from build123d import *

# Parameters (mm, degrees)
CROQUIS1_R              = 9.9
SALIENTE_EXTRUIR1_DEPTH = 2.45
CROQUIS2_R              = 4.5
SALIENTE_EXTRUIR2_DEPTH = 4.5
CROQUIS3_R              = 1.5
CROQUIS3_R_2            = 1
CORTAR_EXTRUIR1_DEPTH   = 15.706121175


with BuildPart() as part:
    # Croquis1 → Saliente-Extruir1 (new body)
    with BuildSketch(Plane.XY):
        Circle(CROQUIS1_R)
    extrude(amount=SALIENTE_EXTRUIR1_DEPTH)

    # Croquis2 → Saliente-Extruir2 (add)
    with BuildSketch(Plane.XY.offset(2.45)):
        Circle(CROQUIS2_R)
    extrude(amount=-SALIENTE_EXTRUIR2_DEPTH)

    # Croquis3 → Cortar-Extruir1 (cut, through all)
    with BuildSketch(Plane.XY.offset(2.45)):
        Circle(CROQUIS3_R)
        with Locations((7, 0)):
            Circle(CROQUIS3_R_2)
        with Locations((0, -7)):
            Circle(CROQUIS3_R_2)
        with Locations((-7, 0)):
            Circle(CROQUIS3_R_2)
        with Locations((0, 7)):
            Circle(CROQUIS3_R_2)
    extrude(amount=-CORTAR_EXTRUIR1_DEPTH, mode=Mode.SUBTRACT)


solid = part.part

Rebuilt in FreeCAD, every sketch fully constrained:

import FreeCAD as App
import Part
import Sketcher
from FreeCAD import Vector
Q = App.Units.Quantity

doc = App.newDocument("Part")
body = doc.addObject("PartDesign::Body", "Body")

# Sketch on XY plane
sketch1 = doc.addObject("Sketcher::SketchObject", "Sketch")
body.addObject(sketch1)
sketch1.AttachmentSupport = (doc.XY_Plane, [""])
sketch1.MapMode = "FlatFace"
sketch1.addGeometry(Part.Circle(Vector(0, 0, 0), Vector(0, 0, 1), 9.9), False)
sketch1.addConstraint(Sketcher.Constraint("Coincident", 0, 3, -1, 1))
sketch1.addConstraint(Sketcher.Constraint("Diameter", 0, Q("19.8 mm")))
pad1 = doc.addObject("PartDesign::Pad", "Pad")
body.addObject(pad1)
pad1.Profile = sketch1
pad1.Length = 2.45

# Sketch on XY plane
sketch2 = doc.addObject("Sketcher::SketchObject", "Sketch001")
body.addObject(sketch2)
sketch2.AttachmentSupport = (doc.XY_Plane, [""])
sketch2.MapMode = "FlatFace"
sketch2.AttachmentOffset = App.Placement(Vector(0, 0, 2.45), App.Rotation())
sketch2.addGeometry(Part.Circle(Vector(0, 0, 0), Vector(0, 0, 1), 4.5), False)
sketch2.addConstraint(Sketcher.Constraint("Coincident", 0, 3, -1, 1))
sketch2.addConstraint(Sketcher.Constraint("Diameter", 0, Q("9 mm")))
pad2 = doc.addObject("PartDesign::Pad", "Pad001")
body.addObject(pad2)
pad2.Profile = sketch2
pad2.Length = 4.5
pad2.Reversed = True

# Sketch on XY plane
sketch3 = doc.addObject("Sketcher::SketchObject", "Sketch002")
body.addObject(sketch3)
sketch3.AttachmentSupport = (doc.XY_Plane, [""])
sketch3.MapMode = "FlatFace"
sketch3.AttachmentOffset = App.Placement(Vector(0, 0, 2.45), App.Rotation())
sketch3.addGeometry(Part.Circle(Vector(0, 0, 0), Vector(0, 0, 1), 1.5), False)
sketch3.addGeometry(Part.Circle(Vector(7, 0, 0), Vector(0, 0, 1), 1), False)
sketch3.addGeometry(Part.Circle(Vector(0, -7, 0), Vector(0, 0, 1), 1), False)
sketch3.addGeometry(Part.Circle(Vector(-7, 0, 0), Vector(0, 0, 1), 1), False)
sketch3.addGeometry(Part.Circle(Vector(0, 7, 0), Vector(0, 0, 1), 1), False)
sketch3.addConstraint(Sketcher.Constraint("Coincident", 0, 3, -1, 1))
sketch3.addConstraint(Sketcher.Constraint("Equal", 1, 2))
sketch3.addConstraint(Sketcher.Constraint("Equal", 2, 3))
sketch3.addConstraint(Sketcher.Constraint("Equal", 3, 4))
sketch3.addConstraint(Sketcher.Constraint("Symmetric", 1, 3, 3, 3, -1, 1))
sketch3.addConstraint(Sketcher.Constraint("Symmetric", 2, 3, 4, 3, -1, 1))
sketch3.addConstraint(Sketcher.Constraint("PointOnObject", 1, 3, -1))
sketch3.addConstraint(Sketcher.Constraint("PointOnObject", 2, 3, -2))
sketch3.addConstraint(Sketcher.Constraint("Diameter", 0, Q("3 mm")))
sketch3.addConstraint(Sketcher.Constraint("Diameter", 1, Q("2 mm")))
sketch3.addConstraint(Sketcher.Constraint("DistanceX", -1, 1, 1, 3, Q("7 mm")))
sketch3.addConstraint(Sketcher.Constraint("DistanceY", 2, 3, -1, 1, Q("7 mm")))
pocket1 = doc.addObject("PartDesign::Pocket", "Pocket")
body.addObject(pocket1)
pocket1.Profile = sketch3
pocket1.Type = "ThroughAll"

doc.recompute()
